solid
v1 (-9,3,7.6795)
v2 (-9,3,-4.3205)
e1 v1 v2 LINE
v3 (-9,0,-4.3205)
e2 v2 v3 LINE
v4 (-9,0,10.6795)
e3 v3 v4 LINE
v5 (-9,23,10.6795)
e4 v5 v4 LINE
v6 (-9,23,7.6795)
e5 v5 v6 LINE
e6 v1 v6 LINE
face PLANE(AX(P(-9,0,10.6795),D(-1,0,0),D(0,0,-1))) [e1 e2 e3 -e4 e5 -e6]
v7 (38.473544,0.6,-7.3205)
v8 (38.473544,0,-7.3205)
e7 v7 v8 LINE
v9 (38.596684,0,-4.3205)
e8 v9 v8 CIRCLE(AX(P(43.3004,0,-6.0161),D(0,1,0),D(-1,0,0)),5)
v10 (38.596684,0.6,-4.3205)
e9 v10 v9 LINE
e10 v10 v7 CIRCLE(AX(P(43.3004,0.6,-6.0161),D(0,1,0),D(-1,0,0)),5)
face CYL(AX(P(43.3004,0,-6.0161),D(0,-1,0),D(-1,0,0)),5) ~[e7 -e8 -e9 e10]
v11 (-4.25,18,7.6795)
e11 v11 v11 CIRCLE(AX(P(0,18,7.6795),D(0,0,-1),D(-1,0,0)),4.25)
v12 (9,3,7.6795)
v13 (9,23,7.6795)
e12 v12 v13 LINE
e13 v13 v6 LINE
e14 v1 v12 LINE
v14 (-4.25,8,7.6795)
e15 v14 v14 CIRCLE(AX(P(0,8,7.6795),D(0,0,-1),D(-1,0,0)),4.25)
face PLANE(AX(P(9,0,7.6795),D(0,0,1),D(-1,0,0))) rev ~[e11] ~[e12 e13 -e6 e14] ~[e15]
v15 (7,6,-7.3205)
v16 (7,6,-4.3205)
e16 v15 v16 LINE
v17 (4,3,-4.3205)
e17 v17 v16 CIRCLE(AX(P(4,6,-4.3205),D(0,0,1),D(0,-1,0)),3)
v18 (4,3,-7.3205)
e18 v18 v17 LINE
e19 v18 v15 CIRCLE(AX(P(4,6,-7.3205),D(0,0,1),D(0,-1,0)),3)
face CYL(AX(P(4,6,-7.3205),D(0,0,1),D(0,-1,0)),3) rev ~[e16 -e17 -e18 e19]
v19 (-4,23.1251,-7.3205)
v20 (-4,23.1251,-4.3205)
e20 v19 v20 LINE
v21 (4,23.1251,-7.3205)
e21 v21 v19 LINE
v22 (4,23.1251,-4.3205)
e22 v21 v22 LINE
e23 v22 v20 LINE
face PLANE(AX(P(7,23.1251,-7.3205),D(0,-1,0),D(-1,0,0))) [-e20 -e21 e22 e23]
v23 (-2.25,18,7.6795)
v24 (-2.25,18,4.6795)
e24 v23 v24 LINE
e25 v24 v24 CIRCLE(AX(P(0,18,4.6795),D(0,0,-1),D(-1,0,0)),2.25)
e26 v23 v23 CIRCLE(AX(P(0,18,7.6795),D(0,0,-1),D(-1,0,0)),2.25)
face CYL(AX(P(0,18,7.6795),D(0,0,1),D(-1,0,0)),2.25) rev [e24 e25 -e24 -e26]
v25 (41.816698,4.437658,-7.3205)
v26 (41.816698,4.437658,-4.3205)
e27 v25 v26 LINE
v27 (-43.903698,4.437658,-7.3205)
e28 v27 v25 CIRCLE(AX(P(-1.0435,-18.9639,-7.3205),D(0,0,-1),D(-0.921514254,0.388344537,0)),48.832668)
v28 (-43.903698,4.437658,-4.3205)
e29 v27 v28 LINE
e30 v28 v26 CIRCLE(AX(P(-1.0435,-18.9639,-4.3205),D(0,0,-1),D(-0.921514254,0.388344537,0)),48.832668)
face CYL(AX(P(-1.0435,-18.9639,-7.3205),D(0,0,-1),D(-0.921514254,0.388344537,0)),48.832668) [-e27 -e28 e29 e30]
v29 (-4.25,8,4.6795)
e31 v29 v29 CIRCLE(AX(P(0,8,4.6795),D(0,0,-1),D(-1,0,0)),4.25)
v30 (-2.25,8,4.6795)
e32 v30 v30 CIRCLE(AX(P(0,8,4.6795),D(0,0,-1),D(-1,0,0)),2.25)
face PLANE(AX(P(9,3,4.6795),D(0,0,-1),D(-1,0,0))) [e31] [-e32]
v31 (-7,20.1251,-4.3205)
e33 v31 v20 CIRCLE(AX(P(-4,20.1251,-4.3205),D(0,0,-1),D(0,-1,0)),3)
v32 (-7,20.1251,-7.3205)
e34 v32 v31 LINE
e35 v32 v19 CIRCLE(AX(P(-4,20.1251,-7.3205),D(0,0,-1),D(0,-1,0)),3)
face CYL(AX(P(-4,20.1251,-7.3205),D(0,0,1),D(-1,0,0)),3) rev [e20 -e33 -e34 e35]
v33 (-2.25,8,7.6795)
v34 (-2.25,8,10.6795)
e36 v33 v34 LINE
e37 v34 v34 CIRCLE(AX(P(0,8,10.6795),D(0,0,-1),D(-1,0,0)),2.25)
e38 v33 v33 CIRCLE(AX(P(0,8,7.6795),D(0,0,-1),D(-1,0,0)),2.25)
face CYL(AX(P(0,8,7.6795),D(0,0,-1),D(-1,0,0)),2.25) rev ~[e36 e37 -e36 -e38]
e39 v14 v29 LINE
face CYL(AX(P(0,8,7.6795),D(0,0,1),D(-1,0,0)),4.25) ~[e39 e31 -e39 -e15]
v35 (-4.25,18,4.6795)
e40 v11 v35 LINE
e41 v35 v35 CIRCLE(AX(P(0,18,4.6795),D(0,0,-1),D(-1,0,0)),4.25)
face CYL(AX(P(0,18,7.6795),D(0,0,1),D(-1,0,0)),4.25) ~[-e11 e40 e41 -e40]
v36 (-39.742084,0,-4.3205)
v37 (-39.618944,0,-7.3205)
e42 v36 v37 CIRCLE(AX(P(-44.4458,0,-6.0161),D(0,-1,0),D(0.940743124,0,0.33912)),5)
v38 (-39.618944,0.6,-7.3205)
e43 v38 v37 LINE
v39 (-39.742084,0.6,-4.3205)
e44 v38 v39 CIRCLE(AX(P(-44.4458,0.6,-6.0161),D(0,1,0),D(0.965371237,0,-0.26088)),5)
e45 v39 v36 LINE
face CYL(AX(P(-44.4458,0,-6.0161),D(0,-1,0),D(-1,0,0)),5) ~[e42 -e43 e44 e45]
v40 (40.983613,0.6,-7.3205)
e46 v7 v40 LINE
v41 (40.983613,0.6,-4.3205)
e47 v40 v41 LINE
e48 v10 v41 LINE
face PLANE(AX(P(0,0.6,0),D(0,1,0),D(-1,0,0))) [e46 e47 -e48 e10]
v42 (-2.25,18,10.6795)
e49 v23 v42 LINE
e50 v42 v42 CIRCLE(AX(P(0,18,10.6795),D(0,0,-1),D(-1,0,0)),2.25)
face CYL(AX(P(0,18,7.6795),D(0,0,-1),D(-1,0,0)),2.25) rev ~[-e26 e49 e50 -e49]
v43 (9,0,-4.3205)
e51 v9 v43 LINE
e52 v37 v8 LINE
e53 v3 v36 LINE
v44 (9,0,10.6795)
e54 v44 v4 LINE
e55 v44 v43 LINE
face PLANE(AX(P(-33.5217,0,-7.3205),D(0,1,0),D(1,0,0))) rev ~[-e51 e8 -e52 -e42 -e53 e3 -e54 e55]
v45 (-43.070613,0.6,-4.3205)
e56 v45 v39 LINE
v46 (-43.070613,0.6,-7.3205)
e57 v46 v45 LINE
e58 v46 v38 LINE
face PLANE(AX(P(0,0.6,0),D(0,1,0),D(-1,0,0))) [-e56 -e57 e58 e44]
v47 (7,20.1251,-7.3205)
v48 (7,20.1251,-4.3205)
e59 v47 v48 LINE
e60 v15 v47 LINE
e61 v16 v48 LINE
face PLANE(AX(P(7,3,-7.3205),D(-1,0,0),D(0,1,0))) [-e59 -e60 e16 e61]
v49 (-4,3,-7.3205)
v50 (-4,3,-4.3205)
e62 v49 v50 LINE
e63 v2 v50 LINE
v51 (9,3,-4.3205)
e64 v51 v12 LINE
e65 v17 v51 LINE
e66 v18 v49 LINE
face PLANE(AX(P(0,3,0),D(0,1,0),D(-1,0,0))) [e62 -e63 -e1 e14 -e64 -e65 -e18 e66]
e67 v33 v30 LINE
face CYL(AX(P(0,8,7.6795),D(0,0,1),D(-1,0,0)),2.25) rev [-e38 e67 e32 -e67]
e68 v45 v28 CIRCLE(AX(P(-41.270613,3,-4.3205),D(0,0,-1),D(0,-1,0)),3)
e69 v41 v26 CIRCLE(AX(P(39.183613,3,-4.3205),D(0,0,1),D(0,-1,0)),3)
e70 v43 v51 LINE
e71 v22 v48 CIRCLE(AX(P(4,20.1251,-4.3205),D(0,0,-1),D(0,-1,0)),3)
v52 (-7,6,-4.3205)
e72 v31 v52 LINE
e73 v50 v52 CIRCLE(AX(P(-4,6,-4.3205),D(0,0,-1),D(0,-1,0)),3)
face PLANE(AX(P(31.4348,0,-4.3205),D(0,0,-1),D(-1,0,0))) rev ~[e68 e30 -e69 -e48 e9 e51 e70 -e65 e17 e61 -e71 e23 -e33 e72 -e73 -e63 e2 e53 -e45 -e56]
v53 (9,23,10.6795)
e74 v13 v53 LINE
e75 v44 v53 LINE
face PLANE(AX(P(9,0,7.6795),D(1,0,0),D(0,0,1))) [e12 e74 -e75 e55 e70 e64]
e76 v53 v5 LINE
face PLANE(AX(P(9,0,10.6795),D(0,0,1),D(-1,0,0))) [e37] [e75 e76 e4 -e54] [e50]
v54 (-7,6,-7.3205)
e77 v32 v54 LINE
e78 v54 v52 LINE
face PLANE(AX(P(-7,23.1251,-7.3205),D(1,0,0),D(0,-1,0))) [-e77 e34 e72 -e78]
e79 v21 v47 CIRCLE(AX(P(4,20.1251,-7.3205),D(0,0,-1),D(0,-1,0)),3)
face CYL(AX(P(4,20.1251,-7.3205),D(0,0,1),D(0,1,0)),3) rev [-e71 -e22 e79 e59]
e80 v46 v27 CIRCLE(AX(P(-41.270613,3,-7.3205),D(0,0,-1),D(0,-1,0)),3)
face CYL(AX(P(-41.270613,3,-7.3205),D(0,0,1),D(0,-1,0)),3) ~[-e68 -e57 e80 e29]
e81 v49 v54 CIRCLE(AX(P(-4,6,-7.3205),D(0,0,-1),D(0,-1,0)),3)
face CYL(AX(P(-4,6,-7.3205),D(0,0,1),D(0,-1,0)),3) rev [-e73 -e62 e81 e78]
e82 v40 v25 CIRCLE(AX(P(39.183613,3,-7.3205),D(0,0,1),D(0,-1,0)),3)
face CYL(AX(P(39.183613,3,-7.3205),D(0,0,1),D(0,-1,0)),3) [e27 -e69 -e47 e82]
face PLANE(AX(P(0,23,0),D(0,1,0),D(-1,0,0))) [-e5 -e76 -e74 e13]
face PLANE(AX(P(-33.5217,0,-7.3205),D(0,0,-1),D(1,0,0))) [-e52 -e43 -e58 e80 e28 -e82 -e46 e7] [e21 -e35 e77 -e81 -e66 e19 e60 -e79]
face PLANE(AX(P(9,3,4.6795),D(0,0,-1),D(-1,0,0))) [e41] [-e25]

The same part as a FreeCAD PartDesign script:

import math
import FreeCAD as App
import Part
import Sketcher

V = App.Vector
Q = App.Units.Quantity


def edges_at(feature, points):
    """Names of the edges that pass closest to the given points."""
    edges = feature.Shape.Edges
    near = lambda p: min(range(len(edges)), key=lambda i: edges[i].distToShape(Part.Vertex(*p))[0])
    return sorted({f"Edge{near(p) + 1}" for p in points})

doc = App.newDocument("Part")
body = doc.addObject("PartDesign::Body", "Body")

# Sketch on XZ plane
sketch1 = body.newObject("Sketcher::SketchObject", "Sketch")
sketch1.AttachmentSupport = (doc.getObject("XZ_Plane"), [""])
sketch1.MapMode = "FlatFace"
sketch1.addGeometry([
    Part.LineSegment(V(-9, 10.7, 0), V(9, 10.7, 0)),  # 0
    Part.LineSegment(V(9, 10.7, 0), V(9, -4.7, 0)),  # 1
    Part.LineSegment(V(9, -4.7, 0), V(31.4, -4.7, 0)),  # 2
    Part.LineSegment(V(31.4, -4.7, 0), V(31.4, -7.3, 0)),  # 3
    Part.LineSegment(V(31.4, -7.3, 0), V(-33.5, -7.3, 0)),  # 4
    Part.LineSegment(V(-33.5, -7.3, 0), V(-33.5, -4.7, 0)),  # 5
    Part.LineSegment(V(-33.5, -4.7, 0), V(-9, -4.7, 0)),  # 6
    Part.LineSegment(V(-9, -4.7, 0), V(-9, 10.7, 0)),  # 7
], False)
sketch1.addConstraint([
    Sketcher.Constraint("Coincident", 0, 2, 1, 1),
    Sketcher.Constraint("Coincident", 1, 2, 2, 1),
    Sketcher.Constraint("Coincident", 2, 2, 3, 1),
    Sketcher.Constraint("Coincident", 3, 2, 4, 1),
    Sketcher.Constraint("Coincident", 4, 2, 5, 1),
    Sketcher.Constraint("Coincident", 5, 2, 6, 1),
    Sketcher.Constraint("Coincident", 6, 2, 7, 1),
    Sketcher.Constraint("Coincident", 7, 2, 0, 1),
    Sketcher.Constraint("Horizontal", 0),
    Sketcher.Constraint("Vertical", 1),
    Sketcher.Constraint("Horizontal", 2),
    Sketcher.Constraint("Vertical", 3),
    Sketcher.Constraint("Horizontal", 4),
    Sketcher.Constraint("Vertical", 5),
    Sketcher.Constraint("Horizontal", 6),
    Sketcher.Constraint("Vertical", 7),
    Sketcher.Constraint("Symmetric", 1, 2, 6, 2, -2),
    Sketcher.Constraint("DistanceX", 0, 1, 0, 2, Q("18 mm")),
    Sketcher.Constraint("DistanceY", 3, 2, 0, 2, Q("18 mm")),
    Sketcher.Constraint("DistanceX", 2, 1, 2, 2, Q("22.4348 mm")),
    Sketcher.Constraint("DistanceX", 4, 2, 4, 1, Q("64.9565 mm")),
    Sketcher.Constraint("DistanceY", 1, 2, 1, 1, Q("15.3913 mm")),
    Sketcher.Constraint("DistanceY", -1, 1, 0, 2, Q("10.6795 mm")),
])
pad1 = body.newObject("PartDesign::Pad", "Pad")
pad1.Profile = sketch1
pad1.Length = 3
pad1.Reversed = True

# Sketch on XZ plane
sketch2 = body.newObject("Sketcher::SketchObject", "Sketch001")
sketch2.AttachmentSupport = (doc.getObject("XZ_Plane"), [""])
sketch2.MapMode = "FlatFace"
sketch2.addGeometry([
    Part.LineSegment(V(-9, 10.7, 0), V(9, 10.7, 0)),
    Part.LineSegment(V(9, 10.7, 0), V(9, 7.7, 0)),
    Part.LineSegment(V(9, 7.7, 0), V(-9, 7.7, 0)),
    Part.LineSegment(V(-9, 7.7, 0), V(-9, 10.7, 0)),
], False)
sketch2.addConstraint([
    Sketcher.Constraint("Coincident", 0, 2, 1, 1),
    Sketcher.Constraint("Coincident", 1, 2, 2, 1),
    Sketcher.Constraint("Coincident", 2, 2, 3, 1),
    Sketcher.Constraint("Coincident", 3, 2, 0, 1),
    Sketcher.Constraint("Horizontal", 0),
    Sketcher.Constraint("Vertical", 1),
    Sketcher.Constraint("Horizontal", 2),
    Sketcher.Constraint("Vertical", 3),
    Sketcher.Constraint("DistanceX", 0, 1, 0, 2, Q("18 mm")),
    Sketcher.Constraint("DistanceY", 1, 2, 1, 1, Q("3 mm")),
    Sketcher.Constraint("DistanceX", -1, 1, 0, 2, Q("9 mm")),
    Sketcher.Constraint("DistanceY", -1, 1, 0, 2, Q("10.6795 mm")),
])
pad2 = body.newObject("PartDesign::Pad", "Pad001")
pad2.Profile = sketch2
pad2.Length = 23
pad2.Reversed = True

# Sketch on XY plane
sketch3 = body.newObject("Sketcher::SketchObject", "Sketch002")
sketch3.AttachmentSupport = (doc.getObject("XY_Plane"), [""])
sketch3.MapMode = "FlatFace"
sketch3.AttachmentOffset = App.Placement(V(0, 0, 7.6795), App.Rotation())
sketch3.addGeometry([
    Part.Circle(V(0, 18, 0), V(0, 0, 1), 2.2),
    Part.Circle(V(0, 8, 0), V(0, 0, 1), 2.2),
], False)
sketch3.addConstraint([
    Sketcher.Constraint("Equal", 0, 1),
    Sketcher.Constraint("PointOnObject", 0, 3, -2),
    Sketcher.Constraint("PointOnObject", 1, 3, -2),
    Sketcher.Constraint("Diameter", 0, Q("4.5 mm")),
    Sketcher.Constraint("DistanceY", -1, 1, 0, 3, Q("18 mm")),
    Sketcher.Constraint("DistanceY", -1, 1, 1, 3, Q("8 mm")),
])
pocket1 = body.newObject("PartDesign::Pocket", "Pocket")
pocket1.Profile = sketch3
pocket1.Length = 3
pocket1.Reversed = True

# Sketch on XY plane
sketch4 = body.newObject("Sketcher::SketchObject", "Sketch003")
sketch4.AttachmentSupport = (doc.getObject("XY_Plane"), [""])
sketch4.MapMode = "FlatFace"
sketch4.AttachmentOffset = App.Placement(V(0, 0, 7.6795), App.Rotation())
sketch4.addGeometry([
    Part.Circle(V(0, 8, 0), V(0, 0, 1), 4.2),
    Part.Circle(V(0, 8, 0), V(0, 0, 1), 2.2),
    Part.Circle(V(0, 18, 0), V(0, 0, 1), 4.2),
    Part.Circle(V(0, 18, 0), V(0, 0, 1), 2.2),
], False)
sketch4.addConstraint([
    Sketcher.Constraint("Coincident", 1, 3, 0, 3),
    Sketcher.Constraint("Coincident", 3, 3, 2, 3),
    Sketcher.Constraint("Equal", 0, 2),
    Sketcher.Constraint("Equal", 1, 3),
    Sketcher.Constraint("PointOnObject", 0, 3, -2),
    Sketcher.Constraint("PointOnObject", 2, 3, -2),
    Sketcher.Constraint("Diameter", 1, Q("4.5 mm")),
    Sketcher.Constraint("Diameter", 0, Q("8.5 mm")),
    Sketcher.Constraint("DistanceY", -1, 1, 0, 3, Q("8 mm")),
    Sketcher.Constraint("DistanceY", -1, 1, 2, 3, Q("18 mm")),
])
pad3 = body.newObject("PartDesign::Pad", "Pad002")
pad3.Profile = sketch4
pad3.Length = 3
pad3.Reversed = True

# Sketch on XY plane
sketch5 = body.newObject("Sketcher::SketchObject", "Sketch004")
sketch5.AttachmentSupport = (doc.getObject("XY_Plane"), [""])
sketch5.MapMode = "FlatFace"
sketch5.AttachmentOffset = App.Placement(V(0, 0, -7.3205), App.Rotation())
sketch5.addGeometry([
    Part.LineSegment(V(31, 0, 0), V(-46, 0, 0)),  # 0
    Part.ArcOfCircle(Part.Circle(V(-1, -19, 0), V(0, 0, 1), 49), math.radians(23), math.radians(157)),  # 1
    Part.LineSegment(V(44, 0, 0), V(31, 0, 0)),  # 2
    Part.LineSegment(V(-7, 3, 0), V(7, 3, 0)),  # 3
    Part.LineSegment(V(7, 3, 0), V(7, 23, 0)),  # 4
    Part.LineSegment(V(7, 23, 0), V(-7, 23, 0)),  # 5
    Part.LineSegment(V(-7, 23, 0), V(-7, 3, 0)),  # 6
], False)
sketch5.addConstraint([
    Sketcher.Constraint("Coincident", 0, 2, 1, 2),
    Sketcher.Constraint("Coincident", 1, 1, 2, 1),
    Sketcher.Constraint("Coincident", 2, 2, 0, 1),
    Sketcher.Constraint("Coincident", 3, 2, 4, 1),
    Sketcher.Constraint("Coincident", 4, 2, 5, 1),
    Sketcher.Constraint("Coincident", 5, 2, 6, 1),
    Sketcher.Constraint("Coincident", 6, 2, 3, 1),
    Sketcher.Constraint("Horizontal", 0),
    Sketcher.Constraint("Horizontal", 2),
    Sketcher.Constraint("Horizontal", 3),
    Sketcher.Constraint("Vertical", 4),
    Sketcher.Constraint("Horizontal", 5),
    Sketcher.Constraint("Vertical", 6),
    Sketcher.Constraint("PointOnObject", 0, 2, -1),
    Sketcher.Constraint("DistanceX", -1, 1, 3, 2, Q("7 mm")),
    Sketcher.Constraint("DistanceX", 5, 2, -1, 1, Q("7 mm")),
    Sketcher.Constraint("DistanceX", 0, 2, 1, 1, Q("90 mm")),
    Sketcher.Constraint("DistanceY", -1, 1, 3, 2, Q("3 mm")),
    Sketcher.Constraint("Radius", 1, Q("48.8327 mm")),
    Sketcher.Constraint("DistanceY", 4, 1, 4, 2, Q("20.125 mm")),
    Sketcher.Constraint("DistanceX", 0, 2, 0, 1, Q("77.4783 mm")),
    Sketcher.Constraint("DistanceX", 1, 3, -1, 1, Q("1.0435 mm")),
])
pad4 = body.newObject("PartDesign::Pad", "Pad003")
pad4.Profile = sketch5
pad4.Length = 3
doc.recompute()

fillet = body.newObject("PartDesign::Fillet", "Fillet")
fillet.Base = (pad4, edges_at(pad4, [(-46.044, 0, -5.821), (43.956, 0, -5.821)]))
fillet.Radius = 3
doc.recompute()

fillet2 = body.newObject("PartDesign::Fillet", "Fillet001")
fillet2.Base = (fillet, edges_at(fillet, [
    (7, 3, -5.821),
    (-7, 3, -5.821),
    (-7, 23.125, -5.821),
    (7, 23.125, -5.821),
]))
fillet2.Radius = 3

# Sketch on XZ plane
sketch6 = body.newObject("Sketcher::SketchObject", "Sketch005")
sketch6.AttachmentSupport = (doc.getObject("XZ_Plane"), [""])
sketch6.MapMode = "FlatFace"
sketch6.addGeometry([
    Part.Circle(V(43, -6, 0), V(0, 0, 1), 5),
    Part.Circle(V(-44, -6, 0), V(0, 0, 1), 5),
], False)
sketch6.addConstraint([
    Sketcher.Constraint("Equal", 0, 1),
    Sketcher.Constraint("Horizontal", 0, 3, 1, 3),
    Sketcher.Constraint("Diameter", 0, Q("10 mm")),
    Sketcher.Constraint("DistanceY", 0, 3, -1, 1, Q("6.016 mm")),
    Sketcher.Constraint("DistanceX", -1, 1, 0, 3, Q("43.3004 mm")),
    Sketcher.Constraint("DistanceX", 1, 3, -1, 1, Q("44.4458 mm")),
])
pad5 = body.newObject("PartDesign::Pad", "Pad004")
pad5.Profile = sketch6
pad5.Length = 0.6
pad5.Reversed = True

doc.recompute()
